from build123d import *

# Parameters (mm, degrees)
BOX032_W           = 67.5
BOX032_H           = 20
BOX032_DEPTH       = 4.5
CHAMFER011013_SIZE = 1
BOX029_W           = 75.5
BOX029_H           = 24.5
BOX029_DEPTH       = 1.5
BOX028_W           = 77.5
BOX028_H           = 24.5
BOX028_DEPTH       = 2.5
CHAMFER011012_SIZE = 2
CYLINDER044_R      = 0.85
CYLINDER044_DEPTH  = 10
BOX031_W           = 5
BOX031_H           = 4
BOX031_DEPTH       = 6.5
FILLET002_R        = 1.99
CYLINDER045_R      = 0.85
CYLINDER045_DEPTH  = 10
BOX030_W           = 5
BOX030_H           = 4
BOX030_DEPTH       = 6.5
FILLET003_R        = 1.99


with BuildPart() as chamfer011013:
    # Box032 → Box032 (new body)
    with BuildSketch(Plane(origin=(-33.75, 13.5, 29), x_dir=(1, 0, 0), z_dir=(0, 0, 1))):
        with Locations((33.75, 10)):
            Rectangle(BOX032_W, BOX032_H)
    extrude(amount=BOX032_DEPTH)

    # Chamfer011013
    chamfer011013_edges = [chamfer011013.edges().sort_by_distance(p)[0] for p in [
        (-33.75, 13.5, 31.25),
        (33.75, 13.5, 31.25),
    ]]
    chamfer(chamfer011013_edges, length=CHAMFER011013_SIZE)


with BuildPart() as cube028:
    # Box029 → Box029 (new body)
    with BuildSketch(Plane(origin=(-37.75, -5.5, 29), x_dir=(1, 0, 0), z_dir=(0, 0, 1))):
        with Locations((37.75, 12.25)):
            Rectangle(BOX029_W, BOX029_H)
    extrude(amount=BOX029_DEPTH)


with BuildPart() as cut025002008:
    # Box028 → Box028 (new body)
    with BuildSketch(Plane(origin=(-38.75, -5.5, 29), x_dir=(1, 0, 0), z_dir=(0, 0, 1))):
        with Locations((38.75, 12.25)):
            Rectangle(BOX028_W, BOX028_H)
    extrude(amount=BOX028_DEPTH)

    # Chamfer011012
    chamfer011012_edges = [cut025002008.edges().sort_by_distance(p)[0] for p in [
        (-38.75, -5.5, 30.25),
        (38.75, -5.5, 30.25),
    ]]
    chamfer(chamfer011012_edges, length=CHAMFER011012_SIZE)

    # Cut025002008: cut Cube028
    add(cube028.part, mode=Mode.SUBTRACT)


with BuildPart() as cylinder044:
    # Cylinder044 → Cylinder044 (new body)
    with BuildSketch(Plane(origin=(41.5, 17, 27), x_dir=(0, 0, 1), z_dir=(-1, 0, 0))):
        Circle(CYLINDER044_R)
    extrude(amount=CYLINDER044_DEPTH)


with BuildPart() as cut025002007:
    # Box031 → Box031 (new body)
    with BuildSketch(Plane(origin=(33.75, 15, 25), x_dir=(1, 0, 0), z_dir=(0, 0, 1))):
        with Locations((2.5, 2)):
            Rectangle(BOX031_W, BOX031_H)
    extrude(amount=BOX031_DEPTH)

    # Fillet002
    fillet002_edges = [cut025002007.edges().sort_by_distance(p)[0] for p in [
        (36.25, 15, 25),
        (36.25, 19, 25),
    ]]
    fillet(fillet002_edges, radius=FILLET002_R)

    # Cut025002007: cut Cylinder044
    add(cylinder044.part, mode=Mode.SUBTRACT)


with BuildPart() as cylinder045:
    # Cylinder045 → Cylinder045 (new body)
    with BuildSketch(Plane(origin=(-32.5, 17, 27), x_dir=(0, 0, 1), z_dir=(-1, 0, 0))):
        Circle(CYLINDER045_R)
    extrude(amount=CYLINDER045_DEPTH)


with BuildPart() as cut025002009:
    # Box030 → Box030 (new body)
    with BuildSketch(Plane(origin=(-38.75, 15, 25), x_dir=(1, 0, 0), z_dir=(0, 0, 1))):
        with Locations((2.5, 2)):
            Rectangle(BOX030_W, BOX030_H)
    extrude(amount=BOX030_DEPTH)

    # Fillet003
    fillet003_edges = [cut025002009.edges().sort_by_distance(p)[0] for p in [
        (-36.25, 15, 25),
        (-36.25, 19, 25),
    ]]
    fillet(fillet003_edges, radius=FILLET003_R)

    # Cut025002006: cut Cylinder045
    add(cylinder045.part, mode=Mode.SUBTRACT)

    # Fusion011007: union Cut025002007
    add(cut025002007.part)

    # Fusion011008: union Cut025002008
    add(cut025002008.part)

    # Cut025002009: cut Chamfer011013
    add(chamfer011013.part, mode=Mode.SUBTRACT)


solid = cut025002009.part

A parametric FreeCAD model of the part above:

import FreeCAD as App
import Part
import Sketcher

V = App.Vector
Q = App.Units.Quantity


def edges_at(feature, points):
    """Names of the edges that pass closest to the given points."""
    edges = feature.Shape.Edges
    near = lambda p: min(range(len(edges)), key=lambda i: edges[i].distToShape(Part.Vertex(*p))[0])
    return sorted({f"Edge{near(p) + 1}" for p in points})

doc = App.newDocument("Part")
body = doc.addObject("PartDesign::Body", "Body")

sketch1 = body.newObject("Sketcher::SketchObject", "Sketch")
sketch1.AttachmentSupport = (doc.getObject("XY_Plane"), [""])
sketch1.MapMode = "FlatFace"
sketch1.AttachmentOffset = App.Placement(V(0, 0, 29), App.Rotation())
sketch1.addGeometry([
    Part.LineSegment(V(-33.75, 33.5, 0), V(-33.75, 13.5, 0)),
    Part.LineSegment(V(-33.75, 13.5, 0), V(33.75, 13.5, 0)),
    Part.LineSegment(V(33.75, 13.5, 0), V(33.75, 33.5, 0)),
    Part.LineSegment(V(33.75, 33.5, 0), V(-33.75, 33.5, 0)),
], False)
sketch1.addConstraint([
    Sketcher.Constraint("Coincident", 0, 2, 1, 1),
    Sketcher.Constraint("Coincident", 1, 2, 2, 1),
    Sketcher.Constraint("Coincident", 2, 2, 3, 1),
    Sketcher.Constraint("Coincident", 3, 2, 0, 1),
    Sketcher.Constraint("Vertical", 0),
    Sketcher.Constraint("Horizontal", 1),
    Sketcher.Constraint("Vertical", 2),
    Sketcher.Constraint("Horizontal", 3),
    Sketcher.Constraint("DistanceY", 0, 2, 0, 1, Q("20 mm")),
    Sketcher.Constraint("DistanceX", 1, 1, 1, 2, Q("67.5 mm")),
    Sketcher.Constraint("DistanceY", -1, 1, 0, 2, Q("13.5 mm")),
    Sketcher.Constraint("DistanceX", 0, 2, -1, 1, Q("33.75 mm")),
])
pad1 = body.newObject("PartDesign::Pad", "Pad")
pad1.Profile = sketch1
pad1.Length = 4.5
doc.recompute()

chamfer = body.newObject("PartDesign::Chamfer", "Chamfer")
chamfer.Base = (pad1, edges_at(pad1, [(-33.75, 13.5, 31.25), (33.75, 13.5, 31.25)]))
chamfer.Size = 1
body2 = doc.addObject("PartDesign::Body", "Body001")

sketch2 = body2.newObject("Sketcher::SketchObject", "Sketch001")
sketch2.AttachmentSupport = (doc.getObject("XY_Plane001"), [""])
sketch2.MapMode = "FlatFace"
sketch2.AttachmentOffset = App.Placement(V(0, 0, 29), App.Rotation())
sketch2.addGeometry([
    Part.LineSegment(V(-37.75, 19, 0), V(-37.75, -5.5, 0)),
    Part.LineSegment(V(-37.75, -5.5, 0), V(37.75, -5.5, 0)),
    Part.LineSegment(V(37.75, -5.5, 0), V(37.75, 19, 0)),
    Part.LineSegment(V(37.75, 19, 0), V(-37.75, 19, 0)),
], False)
sketch2.addConstraint([
    Sketcher.Constraint("Coincident", 0, 2, 1, 1),
    Sketcher.Constraint("Coincident", 1, 2, 2, 1),
    Sketcher.Constraint("Coincident", 2, 2, 3, 1),
    Sketcher.Constraint("Coincident", 3, 2, 0, 1),
    Sketcher.Constraint("Vertical", 0),
    Sketcher.Constraint("Horizontal", 1),
    Sketcher.Constraint("Vertical", 2),
    Sketcher.Constraint("Horizontal", 3),
    Sketcher.Constraint("DistanceX", 1, 1, 1, 2, Q("75.5 mm")),
    Sketcher.Constraint("DistanceY", 0, 2, 0, 1, Q("24.5 mm")),
    Sketcher.Constraint("DistanceY", -1, 1, 2, 2, Q("19 mm")),
    Sketcher.Constraint("DistanceX", 0, 2, -1, 1, Q("37.75 mm")),
])
pad2 = body2.newObject("PartDesign::Pad", "Pad001")
pad2.Profile = sketch2
pad2.Length = 1.5
body3 = doc.addObject("PartDesign::Body", "Body002")

sketch3 = body3.newObject("Sketcher::SketchObject", "Sketch002")
sketch3.AttachmentSupport = (doc.getObject("XY_Plane002"), [""])
sketch3.MapMode = "FlatFace"
sketch3.AttachmentOffset = App.Placement(V(0, 0, 29), App.Rotation())
sketch3.addGeometry([
    Part.LineSegment(V(-38.75, 19, 0), V(-38.75, -5.5, 0)),
    Part.LineSegment(V(-38.75, -5.5, 0), V(38.75, -5.5, 0)),
    Part.LineSegment(V(38.75, -5.5, 0), V(38.75, 19, 0)),
    Part.LineSegment(V(38.75, 19, 0), V(-38.75, 19, 0)),
], False)
sketch3.addConstraint([
    Sketcher.Constraint("Coincident", 0, 2, 1, 1),
    Sketcher.Constraint("Coincident", 1, 2, 2, 1),
    Sketcher.Constraint("Coincident", 2, 2, 3, 1),
    Sketcher.Constraint("Coincident", 3, 2, 0, 1),
    Sketcher.Constraint("Vertical", 0),
    Sketcher.Constraint("Horizontal", 1),
    Sketcher.Constraint("Vertical", 2),
    Sketcher.Constraint("Horizontal", 3),
    Sketcher.Constraint("DistanceX", 1, 1, 1, 2, Q("77.5 mm")),
    Sketcher.Constraint("DistanceY", 0, 2, 0, 1, Q("24.5 mm")),
    Sketcher.Constraint("DistanceY", -1, 1, 2, 2, Q("19 mm")),
    Sketcher.Constraint("DistanceX", 0, 2, -1, 1, Q("38.75 mm")),
])
pad3 = body3.newObject("PartDesign::Pad", "Pad002")
pad3.Profile = sketch3
pad3.Length = 2.5
doc.recompute()

chamfer2 = body3.newObject("PartDesign::Chamfer", "Chamfer001")
chamfer2.Base = (pad3, edges_at(pad3, [(-38.75, -5.5, 30.25), (38.75, -5.5, 30.25)]))
chamfer2.Size = 2
doc.recompute()

boolean = body3.newObject("PartDesign::Boolean", "Boolean")
boolean.Type = "Cut"
boolean.addObjects([body2])
body4 = doc.addObject("PartDesign::Body", "Body003")

sketch4 = body4.newObject("Sketcher::SketchObject", "Sketch003")
sketch4.AttachmentSupport = (doc.getObject("YZ_Plane003"), [""])
sketch4.MapMode = "FlatFace"
sketch4.AttachmentOffset = App.Placement(V(0, 0, 41.5), App.Rotation())
sketch4.addGeometry(Part.Circle(V(17, 27, 0), V(0, 0, 1), 0.85), False)
sketch4.addConstraint([
    Sketcher.Constraint("Diameter", 0, Q("1.7 mm")),
    Sketcher.Constraint("DistanceX", -1, 1, 0, 3, Q("17 mm")),
    Sketcher.Constraint("DistanceY", -1, 1, 0, 3, Q("27 mm")),
])
pad4 = body4.newObject("PartDesign::Pad", "Pad003")
pad4.Profile = sketch4
pad4.Length = 10
pad4.Reversed = True
body5 = doc.addObject("PartDesign::Body", "Body004")

sketch5 = body5.newObject("Sketcher::SketchObject", "Sketch004")
sketch5.AttachmentSupport = (doc.getObject("XY_Plane004"), [""])
sketch5.MapMode = "FlatFace"
sketch5.AttachmentOffset = App.Placement(V(0, 0, 25), App.Rotation())
sketch5.addGeometry([
    Part.LineSegment(V(33.75, 19, 0), V(33.75, 15, 0)),
    Part.LineSegment(V(33.75, 15, 0), V(38.75, 15, 0)),
    Part.LineSegment(V(38.75, 15, 0), V(38.75, 19, 0)),
    Part.LineSegment(V(38.75, 19, 0), V(33.75, 19, 0)),
], False)
sketch5.addConstraint([
    Sketcher.Constraint("Coincident", 0, 2, 1, 1),
    Sketcher.Constraint("Coincident", 1, 2, 2, 1),
    Sketcher.Constraint("Coincident", 2, 2, 3, 1),
    Sketcher.Constraint("Coincident", 3, 2, 0, 1),
    Sketcher.Constraint("Vertical", 0),
    Sketcher.Constraint("Horizontal", 1),
    Sketcher.Constraint("Vertical", 2),
    Sketcher.Constraint("Horizontal", 3),
    Sketcher.Constraint("DistanceX", 1, 1, 1, 2, Q("5 mm")),
    Sketcher.Constraint("DistanceY", 0, 2, 0, 1, Q("4 mm")),
    Sketcher.Constraint("DistanceY", -1, 1, 0, 2, Q("15 mm")),
    Sketcher.Constraint("DistanceX", -1, 1, 0, 2, Q("33.75 mm")),
])
pad5 = body5.newObject("PartDesign::Pad", "Pad004")
pad5.Profile = sketch5
pad5.Length = 6.5
doc.recompute()

fillet = body5.newObject("PartDesign::Fillet", "Fillet")
fillet.Base = (pad5, edges_at(pad5, [(36.25, 15, 25), (36.25, 19, 25)]))
fillet.Radius = 1.99
doc.recompute()

boolean2 = body5.newObject("PartDesign::Boolean", "Boolean001")
boolean2.Type = "Cut"
boolean2.addObjects([body4])
body6 = doc.addObject("PartDesign::Body", "Body005")

sketch6 = body6.newObject("Sketcher::SketchObject", "Sketch005")
sketch6.AttachmentSupport = (doc.getObject("YZ_Plane005"), [""])
sketch6.MapMode = "FlatFace"
sketch6.AttachmentOffset = App.Placement(V(0, 0, -32.5), App.Rotation())
sketch6.addGeometry(Part.Circle(V(17, 27, 0), V(0, 0, 1), 0.85), False)
sketch6.addConstraint([
    Sketcher.Constraint("Diameter", 0, Q("1.7 mm")),
    Sketcher.Constraint("DistanceX", -1, 1, 0, 3, Q("17 mm")),
    Sketcher.Constraint("DistanceY", -1, 1, 0, 3, Q("27 mm")),
])
pad6 = body6.newObject("PartDesign::Pad", "Pad005")
pad6.Profile = sketch6
pad6.Length = 10
pad6.Reversed = True
body7 = doc.addObject("PartDesign::Body", "Body006")
body7.AllowCompound = True

sketch7 = body7.newObject("Sketcher::SketchObject", "Sketch006")
sketch7.AttachmentSupport = (doc.getObject("XY_Plane006"), [""])
sketch7.MapMode = "FlatFace"
sketch7.AttachmentOffset = App.Placement(V(0, 0, 25), App.Rotation())
sketch7.addGeometry([
    Part.LineSegment(V(-38.75, 19, 0), V(-38.75, 15, 0)),
    Part.LineSegment(V(-38.75, 15, 0), V(-33.75, 15, 0)),
    Part.LineSegment(V(-33.75, 15, 0), V(-33.75, 19, 0)),
    Part.LineSegment(V(-33.75, 19, 0), V(-38.75, 19, 0)),
], False)
sketch7.addConstraint([
    Sketcher.Constraint("Coincident", 0, 2, 1, 1),
    Sketcher.Constraint("Coincident", 1, 2, 2, 1),
    Sketcher.Constraint("Coincident", 2, 2, 3, 1),
    Sketcher.Constraint("Coincident", 3, 2, 0, 1),
    Sketcher.Constraint("Vertical", 0),
    Sketcher.Constraint("Horizontal", 1),
    Sketcher.Constraint("Vertical", 2),
    Sketcher.Constraint("Horizontal", 3),
    Sketcher.Constraint("DistanceX", 1, 1, 1, 2, Q("5 mm")),
    Sketcher.Constraint("DistanceY", 0, 2, 0, 1, Q("4 mm")),
    Sketcher.Constraint("DistanceY", -1, 1, 0, 2, Q("15 mm")),
    Sketcher.Constraint("DistanceX", 0, 2, -1, 1, Q("38.75 mm")),
])
pad7 = body7.newObject("PartDesign::Pad", "Pad006")
pad7.Profile = sketch7
pad7.Length = 6.5
doc.recompute()

fillet2 = body7.newObject("PartDesign::Fillet", "Fillet001")
fillet2.Base = (pad7, edges_at(pad7, [(-36.25, 15, 25), (-36.25, 19, 25)]))
fillet2.Radius = 1.99
doc.recompute()

boolean3 = body7.newObject("PartDesign::Boolean", "Boolean002")
boolean3.Type = "Cut"
boolean3.addObjects([body6])
doc.recompute()

boolean4 = body7.newObject("PartDesign::Boolean", "Boolean003")
boolean4.Type = "Fuse"
boolean4.addObjects([body5])
doc.recompute()

boolean5 = body7.newObject("PartDesign::Boolean", "Boolean004")
boolean5.Type = "Fuse"
boolean5.addObjects([body3])
doc.recompute()

boolean6 = body7.newObject("PartDesign::Boolean", "Boolean005")
boolean6.Type = "Cut"
boolean6.addObjects([body])

doc.recompute()
